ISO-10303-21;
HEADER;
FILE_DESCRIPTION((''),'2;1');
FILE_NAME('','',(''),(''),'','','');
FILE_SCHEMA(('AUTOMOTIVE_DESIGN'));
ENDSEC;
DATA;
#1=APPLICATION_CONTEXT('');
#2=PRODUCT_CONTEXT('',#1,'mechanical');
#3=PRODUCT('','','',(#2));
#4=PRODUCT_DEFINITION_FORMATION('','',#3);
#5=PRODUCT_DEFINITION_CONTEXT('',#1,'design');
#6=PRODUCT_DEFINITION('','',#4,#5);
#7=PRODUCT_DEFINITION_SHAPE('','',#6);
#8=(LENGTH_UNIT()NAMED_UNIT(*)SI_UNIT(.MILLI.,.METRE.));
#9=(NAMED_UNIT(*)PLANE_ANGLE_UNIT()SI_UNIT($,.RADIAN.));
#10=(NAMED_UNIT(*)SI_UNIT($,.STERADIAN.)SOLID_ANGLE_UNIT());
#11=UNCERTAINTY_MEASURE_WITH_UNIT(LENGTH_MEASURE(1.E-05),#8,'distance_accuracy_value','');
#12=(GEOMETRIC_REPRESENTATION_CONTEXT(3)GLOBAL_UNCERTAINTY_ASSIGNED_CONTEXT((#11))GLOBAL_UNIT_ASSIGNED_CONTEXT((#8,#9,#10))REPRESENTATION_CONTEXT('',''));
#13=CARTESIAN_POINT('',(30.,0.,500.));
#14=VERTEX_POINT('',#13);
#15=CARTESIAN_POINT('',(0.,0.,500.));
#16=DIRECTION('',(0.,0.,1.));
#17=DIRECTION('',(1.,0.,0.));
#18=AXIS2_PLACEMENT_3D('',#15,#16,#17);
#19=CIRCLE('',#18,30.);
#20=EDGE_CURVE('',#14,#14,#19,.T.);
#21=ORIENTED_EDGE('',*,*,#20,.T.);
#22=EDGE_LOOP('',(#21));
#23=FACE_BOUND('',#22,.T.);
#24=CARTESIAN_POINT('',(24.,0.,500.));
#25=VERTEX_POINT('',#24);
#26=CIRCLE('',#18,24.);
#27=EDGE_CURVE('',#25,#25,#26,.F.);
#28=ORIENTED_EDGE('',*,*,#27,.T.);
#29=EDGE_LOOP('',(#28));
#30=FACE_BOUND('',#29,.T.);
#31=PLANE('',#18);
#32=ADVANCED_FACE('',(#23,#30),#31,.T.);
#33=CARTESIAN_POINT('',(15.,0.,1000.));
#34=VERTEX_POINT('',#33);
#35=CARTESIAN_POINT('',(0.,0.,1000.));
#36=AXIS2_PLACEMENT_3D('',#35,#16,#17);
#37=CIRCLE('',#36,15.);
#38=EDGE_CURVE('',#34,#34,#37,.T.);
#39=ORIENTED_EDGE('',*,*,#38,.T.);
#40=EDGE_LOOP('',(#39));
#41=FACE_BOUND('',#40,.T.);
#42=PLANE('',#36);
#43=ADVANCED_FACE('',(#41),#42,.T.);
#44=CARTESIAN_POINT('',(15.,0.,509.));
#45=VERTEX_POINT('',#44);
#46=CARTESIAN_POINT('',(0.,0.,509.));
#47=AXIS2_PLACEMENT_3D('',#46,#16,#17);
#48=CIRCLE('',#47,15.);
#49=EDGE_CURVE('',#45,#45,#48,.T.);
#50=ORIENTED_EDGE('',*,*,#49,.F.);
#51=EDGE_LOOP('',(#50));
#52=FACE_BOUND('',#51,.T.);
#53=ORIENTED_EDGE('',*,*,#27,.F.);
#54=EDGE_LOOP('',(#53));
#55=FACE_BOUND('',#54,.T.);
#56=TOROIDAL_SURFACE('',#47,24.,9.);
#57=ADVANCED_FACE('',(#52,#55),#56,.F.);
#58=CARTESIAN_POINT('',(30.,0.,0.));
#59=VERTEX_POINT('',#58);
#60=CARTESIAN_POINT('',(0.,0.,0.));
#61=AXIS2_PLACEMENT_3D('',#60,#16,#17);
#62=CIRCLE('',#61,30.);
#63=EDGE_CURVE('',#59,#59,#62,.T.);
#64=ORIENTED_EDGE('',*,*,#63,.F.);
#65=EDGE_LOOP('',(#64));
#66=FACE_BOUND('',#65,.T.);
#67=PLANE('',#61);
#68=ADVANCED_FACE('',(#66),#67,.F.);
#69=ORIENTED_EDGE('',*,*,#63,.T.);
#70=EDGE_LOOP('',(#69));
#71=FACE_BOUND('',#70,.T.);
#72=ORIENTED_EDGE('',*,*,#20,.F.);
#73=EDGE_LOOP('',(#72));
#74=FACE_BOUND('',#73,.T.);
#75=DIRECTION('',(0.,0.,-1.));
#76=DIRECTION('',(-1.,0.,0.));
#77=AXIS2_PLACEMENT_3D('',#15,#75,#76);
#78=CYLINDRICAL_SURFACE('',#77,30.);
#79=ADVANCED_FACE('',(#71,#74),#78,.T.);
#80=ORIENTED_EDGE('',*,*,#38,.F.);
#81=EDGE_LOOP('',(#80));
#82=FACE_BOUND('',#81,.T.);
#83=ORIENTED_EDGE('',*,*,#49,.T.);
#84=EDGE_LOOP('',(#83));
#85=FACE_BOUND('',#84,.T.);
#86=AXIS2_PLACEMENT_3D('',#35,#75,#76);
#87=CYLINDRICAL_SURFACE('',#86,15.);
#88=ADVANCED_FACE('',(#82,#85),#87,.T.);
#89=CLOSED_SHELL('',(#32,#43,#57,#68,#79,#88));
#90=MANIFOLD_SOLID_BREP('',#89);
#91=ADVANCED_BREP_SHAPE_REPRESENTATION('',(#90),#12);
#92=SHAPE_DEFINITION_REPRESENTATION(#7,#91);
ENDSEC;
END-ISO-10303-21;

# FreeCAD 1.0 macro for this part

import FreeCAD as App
import Part
import Sketcher
from FreeCAD import Vector
Q = App.Units.Quantity


def edges_at(feature, points):
    """Names of the edges that pass closest to the given points."""
    edges = feature.Shape.Edges
    near = lambda p: min(range(len(edges)), key=lambda i: edges[i].distToShape(Part.Vertex(*p))[0])
    return sorted({f"Edge{near(p) + 1}" for p in points})

doc = App.newDocument("Part")
body = doc.addObject("PartDesign::Body", "Body")

# Sketch on XY plane
sketch1 = body.newObject("Sketcher::SketchObject", "Sketch")
sketch1.AttachmentSupport = (doc.getObject("XY_Plane"), [""])
sketch1.MapMode = "FlatFace"
sketch1.addGeometry(Part.Circle(Vector(0, 0, 0), Vector(0, 0, 1), 30), False)
sketch1.addConstraint(Sketcher.Constraint("Coincident", 0, 3, -1, 1))
sketch1.addConstraint(Sketcher.Constraint("Diameter", 0, Q("60 mm")))
pad1 = body.newObject("PartDesign::Pad", "Pad")
pad1.Profile = sketch1
pad1.Length = 500

# Sketch on XY plane
sketch2 = body.newObject("Sketcher::SketchObject", "Sketch001")
sketch2.AttachmentSupport = (doc.getObject("XY_Plane"), [""])
sketch2.MapMode = "FlatFace"
sketch2.AttachmentOffset = App.Placement(Vector(0, 0, 500), App.Rotation())
sketch2.addGeometry(Part.Circle(Vector(0, 0, 0), Vector(0, 0, 1), 15), False)
sketch2.addConstraint(Sketcher.Constraint("Coincident", 0, 3, -1, 1))
sketch2.addConstraint(Sketcher.Constraint("Diameter", 0, Q("30 mm")))
pad2 = body.newObject("PartDesign::Pad", "Pad001")
pad2.Profile = sketch2
pad2.Length = 500
doc.recompute()

fillet = body.newObject("PartDesign::Fillet", "Fillet")
fillet.Base = (pad2, edges_at(pad2, [(-15, 0, 500)]))
fillet.Radius = 9

doc.recompute()
